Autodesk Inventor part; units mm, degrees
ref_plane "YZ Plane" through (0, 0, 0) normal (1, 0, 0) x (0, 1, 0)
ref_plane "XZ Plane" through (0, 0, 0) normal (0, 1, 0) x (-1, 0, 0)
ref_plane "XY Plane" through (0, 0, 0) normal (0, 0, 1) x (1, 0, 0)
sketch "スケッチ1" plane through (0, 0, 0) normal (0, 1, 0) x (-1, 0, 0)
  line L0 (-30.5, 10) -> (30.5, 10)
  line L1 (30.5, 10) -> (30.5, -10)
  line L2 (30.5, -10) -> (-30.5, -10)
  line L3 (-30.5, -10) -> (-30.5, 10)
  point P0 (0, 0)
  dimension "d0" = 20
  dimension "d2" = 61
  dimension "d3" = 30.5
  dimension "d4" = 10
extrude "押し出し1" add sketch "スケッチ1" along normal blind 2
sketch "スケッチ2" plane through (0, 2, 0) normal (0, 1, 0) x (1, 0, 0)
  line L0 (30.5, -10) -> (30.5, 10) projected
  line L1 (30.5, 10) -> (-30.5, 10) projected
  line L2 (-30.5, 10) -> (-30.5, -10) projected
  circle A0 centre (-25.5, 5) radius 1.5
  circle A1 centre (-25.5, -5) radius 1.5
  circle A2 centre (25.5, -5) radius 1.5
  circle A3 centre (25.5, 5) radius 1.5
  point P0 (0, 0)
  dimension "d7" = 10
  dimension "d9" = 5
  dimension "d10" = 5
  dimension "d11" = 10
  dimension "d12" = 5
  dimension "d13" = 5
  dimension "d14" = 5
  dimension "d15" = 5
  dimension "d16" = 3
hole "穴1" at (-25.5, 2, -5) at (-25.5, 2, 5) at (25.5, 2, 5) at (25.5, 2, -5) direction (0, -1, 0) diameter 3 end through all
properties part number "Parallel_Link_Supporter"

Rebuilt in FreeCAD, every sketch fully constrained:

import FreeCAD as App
import Part
import Sketcher

V = App.Vector
Q = App.Units.Quantity


def add_polygon(sketch, points):
    """Adds a closed chain of lines whose ends are joined by coincident constraints."""
    first, n = sketch.GeometryCount, len(points)
    for a, b in zip(points, points[1:] + points[:1]):
        sketch.addGeometry(Part.LineSegment(App.Vector(*a, 0), App.Vector(*b, 0)), False)
    for i in range(n):
        sketch.addConstraint(Sketcher.Constraint("Coincident", first + i, 2, first + (i + 1) % n, 1))

doc = App.newDocument("Part")
params = doc.addObject("Spreadsheet::Sheet", "Params")
for row, (alias, value) in enumerate([
    ("sketch1_width", "61 mm"),
    ("sketch1_height", "20 mm"),
    ("pad1_length", "2 mm"),
    ("sketch2_diameter", "3 mm"),
    ("hole_diameter", "3 mm"),
], start=1):
    params.set(f"A{row}", alias)
    params.set(f"B{row}", "=" + value)
    params.setAlias(f"B{row}", alias)

body = doc.addObject("PartDesign::Body", "Body")

sketch1 = doc.addObject("Sketcher::SketchObject", "Sketch")
body.addObject(sketch1)
sketch1.AttachmentSupport = (doc.XZ_Plane, [""])
sketch1.MapMode = "FlatFace"
add_polygon(sketch1, [(-30.5, 10), (30.5, 10), (30.5, -10), (-30.5, -10)])
sketch1.addConstraint(Sketcher.Constraint("Horizontal", 0))
sketch1.addConstraint(Sketcher.Constraint("Vertical", 1))
sketch1.addConstraint(Sketcher.Constraint("Horizontal", 2))
sketch1.addConstraint(Sketcher.Constraint("Vertical", 3))
sketch1.addConstraint(Sketcher.Constraint("Symmetric", 0, 2, 2, 2, -1, 1))
sketch1.addConstraint(Sketcher.Constraint("DistanceX", 0, 1, 0, 2, Q("61 mm")))
sketch1.addConstraint(Sketcher.Constraint("DistanceY", 1, 2, 1, 1, Q("20 mm")))
sketch1.setExpression("Constraints[9]", "Params.sketch1_width")
sketch1.setExpression("Constraints[10]", "Params.sketch1_height")
pad1 = doc.addObject("PartDesign::Pad", "Pad")
body.addObject(pad1)
pad1.Profile = sketch1
pad1.setExpression("Length", "Params.pad1_length")
pad1.Reversed = True

sketch2 = doc.addObject("Sketcher::SketchObject", "Sketch001")
body.addObject(sketch2)
sketch2.AttachmentSupport = (doc.XZ_Plane, [""])
sketch2.MapMode = "FlatFace"
sketch2.AttachmentOffset = App.Placement(V(0, 0, -2), App.Rotation())
sketch2.addGeometry(Part.Circle(V(-25.5, -5, 0), V(0, 0, 1), 1.5), False)
sketch2.addGeometry(Part.Circle(V(-25.5, 5, 0), V(0, 0, 1), 1.5), False)
sketch2.addGeometry(Part.Circle(V(25.5, 5, 0), V(0, 0, 1), 1.5), False)
sketch2.addGeometry(Part.Circle(V(25.5, -5, 0), V(0, 0, 1), 1.5), False)
sketch2.addConstraint(Sketcher.Constraint("Equal", 0, 1))
sketch2.addConstraint(Sketcher.Constraint("Equal", 1, 2))
sketch2.addConstraint(Sketcher.Constraint("Equal", 2, 3))
sketch2.addConstraint(Sketcher.Constraint("Symmetric", 0, 3, 2, 3, -1, 1))
sketch2.addConstraint(Sketcher.Constraint("Symmetric", 1, 3, 3, 3, -1, 1))
sketch2.addConstraint(Sketcher.Constraint("Symmetric", 1, 3, 2, 3, -2))
sketch2.addConstraint(Sketcher.Constraint("Diameter", 0, Q("3 mm")))
sketch2.addConstraint(Sketcher.Constraint("DistanceY", 0, 3, -1, 1, Q("5 mm")))
sketch2.addConstraint(Sketcher.Constraint("DistanceX", 1, 3, 2, 3, Q("51 mm")))
sketch2.setExpression("Constraints[6]", "Params.sketch2_diameter")
doc.recompute()
hole = doc.addObject("PartDesign::Hole", "Hole")
body.addObject(hole)
hole.Profile = sketch2
hole.ThreadType = "None"
hole.setExpression("Diameter", "Params.hole_diameter")
hole.DepthType = "ThroughAll"
hole.Reversed = True

doc.recompute()
